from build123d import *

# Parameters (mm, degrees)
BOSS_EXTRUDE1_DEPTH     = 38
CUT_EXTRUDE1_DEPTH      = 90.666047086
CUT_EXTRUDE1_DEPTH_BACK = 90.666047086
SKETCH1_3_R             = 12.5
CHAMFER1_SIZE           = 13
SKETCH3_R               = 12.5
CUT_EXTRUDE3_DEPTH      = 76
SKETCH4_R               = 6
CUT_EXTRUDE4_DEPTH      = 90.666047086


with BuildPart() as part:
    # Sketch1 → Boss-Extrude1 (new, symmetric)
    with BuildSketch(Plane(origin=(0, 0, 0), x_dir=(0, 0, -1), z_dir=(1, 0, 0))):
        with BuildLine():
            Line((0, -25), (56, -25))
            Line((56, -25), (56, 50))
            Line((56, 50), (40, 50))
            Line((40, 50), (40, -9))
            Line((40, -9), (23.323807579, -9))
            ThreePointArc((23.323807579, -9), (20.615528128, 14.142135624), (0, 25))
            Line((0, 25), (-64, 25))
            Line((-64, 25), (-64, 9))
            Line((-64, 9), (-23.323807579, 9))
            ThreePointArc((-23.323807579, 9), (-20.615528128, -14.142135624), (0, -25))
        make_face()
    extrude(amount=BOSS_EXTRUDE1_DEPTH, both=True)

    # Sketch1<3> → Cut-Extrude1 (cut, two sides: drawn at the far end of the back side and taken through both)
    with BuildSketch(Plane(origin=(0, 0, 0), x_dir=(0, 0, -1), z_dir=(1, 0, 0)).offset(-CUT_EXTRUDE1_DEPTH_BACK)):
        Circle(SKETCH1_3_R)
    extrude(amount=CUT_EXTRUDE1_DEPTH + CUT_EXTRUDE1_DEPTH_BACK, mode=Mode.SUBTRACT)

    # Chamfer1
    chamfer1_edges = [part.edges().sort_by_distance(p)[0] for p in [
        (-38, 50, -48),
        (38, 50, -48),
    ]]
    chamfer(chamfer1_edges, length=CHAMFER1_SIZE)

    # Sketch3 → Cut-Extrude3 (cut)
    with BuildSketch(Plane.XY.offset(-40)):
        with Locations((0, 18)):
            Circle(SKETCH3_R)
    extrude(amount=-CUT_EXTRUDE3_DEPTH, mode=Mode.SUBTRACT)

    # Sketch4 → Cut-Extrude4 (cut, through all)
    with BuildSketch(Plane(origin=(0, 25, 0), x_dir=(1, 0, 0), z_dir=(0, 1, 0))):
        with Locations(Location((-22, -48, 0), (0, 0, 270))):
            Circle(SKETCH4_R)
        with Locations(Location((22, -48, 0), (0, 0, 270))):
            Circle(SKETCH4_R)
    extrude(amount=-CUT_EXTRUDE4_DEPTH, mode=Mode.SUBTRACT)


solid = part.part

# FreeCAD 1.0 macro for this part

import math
import FreeCAD as App
import Part
import Sketcher
from FreeCAD import Vector
Q = App.Units.Quantity


def edges_at(feature, points):
    """Names of the edges that pass closest to the given points."""
    edges = feature.Shape.Edges
    near = lambda p: min(range(len(edges)), key=lambda i: edges[i].distToShape(Part.Vertex(*p))[0])
    return sorted({f"Edge{near(p) + 1}" for p in points})

doc = App.newDocument("Part")
body = doc.addObject("PartDesign::Body", "Body")

# Sketch on YZ plane
sketch1 = body.newObject("Sketcher::SketchObject", "Sketch")
sketch1.AttachmentSupport = (doc.getObject("YZ_Plane"), [""])
sketch1.MapMode = "FlatFace"
sketch1.addGeometry([
    Part.LineSegment(Vector(-25, 0, 0), Vector(-25, -56, 0)),  # 0
    Part.LineSegment(Vector(-25, -56, 0), Vector(50, -56, 0)),  # 1
    Part.LineSegment(Vector(50, -56, 0), Vector(50, -40, 0)),  # 2
    Part.LineSegment(Vector(50, -40, 0), Vector(-9, -40, 0)),  # 3
    Part.LineSegment(Vector(-9, -40, 0), Vector(-9, -23.323808, 0)),  # 4
    Part.ArcOfCircle(Part.Circle(Vector(0, 0, 0), Vector(0, 0, 1), 25), math.radians(-111.100196), math.radians(0)),  # 5
    Part.LineSegment(Vector(25, 0, 0), Vector(25, 64, 0)),  # 6
    Part.LineSegment(Vector(25, 64, 0), Vector(9, 64, 0)),  # 7
    Part.LineSegment(Vector(9, 64, 0), Vector(9, 23.323808, 0)),  # 8
    Part.ArcOfCircle(Part.Circle(Vector(0, 0, 0), Vector(0, 0, 1), 25), math.radians(68.899804), math.radians(180)),  # 9
], False)
sketch1.addConstraint([
    Sketcher.Constraint("Coincident", 0, 2, 1, 1),
    Sketcher.Constraint("Coincident", 1, 2, 2, 1),
    Sketcher.Constraint("Coincident", 2, 2, 3, 1),
    Sketcher.Constraint("Coincident", 3, 2, 4, 1),
    Sketcher.Constraint("Coincident", 4, 2, 5, 1),
    Sketcher.Constraint("Tangent", 5, 2, 6, 1),
    Sketcher.Constraint("Coincident", 6, 2, 7, 1),
    Sketcher.Constraint("Coincident", 7, 2, 8, 1),
    Sketcher.Constraint("Coincident", 8, 2, 9, 1),
    Sketcher.Constraint("Tangent", 9, 2, 0, 1),
    Sketcher.Constraint("Vertical", 0),
    Sketcher.Constraint("Horizontal", 1),
    Sketcher.Constraint("Vertical", 2),
    Sketcher.Constraint("Horizontal", 3),
    Sketcher.Constraint("Vertical", 4),
    Sketcher.Constraint("Vertical", 6),
    Sketcher.Constraint("Horizontal", 7),
    Sketcher.Constraint("Vertical", 8),
    Sketcher.Constraint("Coincident", 5, 3, -1, 1),
    Sketcher.Constraint("Coincident", 9, 3, -1, 1),
    Sketcher.Constraint("Equal", 5, 9),
    Sketcher.Constraint("Equal", 7, 2),
    Sketcher.Constraint("Radius", 5, Q("25 mm")),
    Sketcher.Constraint("DistanceX", 1, 1, 1, 2, Q("75 mm")),
    Sketcher.Constraint("DistanceX", 3, 2, 3, 1, Q("59 mm")),
    Sketcher.Constraint("DistanceX", 7, 2, 7, 1, Q("16 mm")),
    Sketcher.Constraint("DistanceY", 0, 2, 0, 1, Q("56 mm")),
    Sketcher.Constraint("DistanceY", 6, 1, 6, 2, Q("64 mm")),
])
pad1 = body.newObject("PartDesign::Pad", "Pad")
pad1.Profile = sketch1
pad1.Length = 76
pad1.Midplane = True

# Sketch on YZ plane
sketch2 = body.newObject("Sketcher::SketchObject", "Sketch001")
sketch2.AttachmentSupport = (doc.getObject("YZ_Plane"), [""])
sketch2.MapMode = "FlatFace"
sketch2.addGeometry(Part.Circle(Vector(0, 0, 0), Vector(0, 0, 1), 12.5), False)
sketch2.addConstraint([
    Sketcher.Constraint("Coincident", 0, 3, -1, 1),
    Sketcher.Constraint("Diameter", 0, Q("25 mm")),
])
pocket1 = body.newObject("PartDesign::Pocket", "Pocket")
pocket1.Profile = sketch2
pocket1.Type = "ThroughAll"
pocket1.Midplane = True
doc.recompute()

chamfer = body.newObject("PartDesign::Chamfer", "Chamfer")
chamfer.Base = (pocket1, edges_at(pocket1, [(-38, 50, -48), (38, 50, -48)]))
chamfer.Size = 13

# Sketch on XY plane
sketch3 = body.newObject("Sketcher::SketchObject", "Sketch002")
sketch3.AttachmentSupport = (doc.getObject("XY_Plane"), [""])
sketch3.MapMode = "FlatFace"
sketch3.AttachmentOffset = App.Placement(Vector(0, 0, -40), App.Rotation())
sketch3.addGeometry(Part.Circle(Vector(0, 18, 0), Vector(0, 0, 1), 12.5), False)
sketch3.addConstraint([
    Sketcher.Constraint("PointOnObject", 0, 3, -2),
    Sketcher.Constraint("Diameter", 0, Q("25 mm")),
    Sketcher.Constraint("DistanceY", -1, 1, 0, 3, Q("18 mm")),
])
pocket2 = body.newObject("PartDesign::Pocket", "Pocket001")
pocket2.Profile = sketch3
pocket2.Length = 76

# Sketch on XZ plane
sketch4 = body.newObject("Sketcher::SketchObject", "Sketch003")
sketch4.AttachmentSupport = (doc.getObject("XZ_Plane"), [""])
sketch4.MapMode = "FlatFace"
sketch4.AttachmentOffset = App.Placement(Vector(0, 0, -25), App.Rotation())
sketch4.addGeometry([
    Part.Circle(Vector(-22, 48, 0), Vector(0, 0, 1), 6),
    Part.Circle(Vector(22, 48, 0), Vector(0, 0, 1), 6),
], False)
sketch4.addConstraint([
    Sketcher.Constraint("Equal", 0, 1),
    Sketcher.Constraint("Symmetric", 0, 3, 1, 3, -2),
    Sketcher.Constraint("Diameter", 0, Q("12 mm")),
    Sketcher.Constraint("DistanceX", 0, 3, -1, 1, Q("22 mm")),
    Sketcher.Constraint("DistanceY", -1, 1, 0, 3, Q("48 mm")),
])
pocket3 = body.newObject("PartDesign::Pocket", "Pocket002")
pocket3.Profile = sketch4
pocket3.Type = "ThroughAll"
pocket3.Reversed = True

doc.recompute()
